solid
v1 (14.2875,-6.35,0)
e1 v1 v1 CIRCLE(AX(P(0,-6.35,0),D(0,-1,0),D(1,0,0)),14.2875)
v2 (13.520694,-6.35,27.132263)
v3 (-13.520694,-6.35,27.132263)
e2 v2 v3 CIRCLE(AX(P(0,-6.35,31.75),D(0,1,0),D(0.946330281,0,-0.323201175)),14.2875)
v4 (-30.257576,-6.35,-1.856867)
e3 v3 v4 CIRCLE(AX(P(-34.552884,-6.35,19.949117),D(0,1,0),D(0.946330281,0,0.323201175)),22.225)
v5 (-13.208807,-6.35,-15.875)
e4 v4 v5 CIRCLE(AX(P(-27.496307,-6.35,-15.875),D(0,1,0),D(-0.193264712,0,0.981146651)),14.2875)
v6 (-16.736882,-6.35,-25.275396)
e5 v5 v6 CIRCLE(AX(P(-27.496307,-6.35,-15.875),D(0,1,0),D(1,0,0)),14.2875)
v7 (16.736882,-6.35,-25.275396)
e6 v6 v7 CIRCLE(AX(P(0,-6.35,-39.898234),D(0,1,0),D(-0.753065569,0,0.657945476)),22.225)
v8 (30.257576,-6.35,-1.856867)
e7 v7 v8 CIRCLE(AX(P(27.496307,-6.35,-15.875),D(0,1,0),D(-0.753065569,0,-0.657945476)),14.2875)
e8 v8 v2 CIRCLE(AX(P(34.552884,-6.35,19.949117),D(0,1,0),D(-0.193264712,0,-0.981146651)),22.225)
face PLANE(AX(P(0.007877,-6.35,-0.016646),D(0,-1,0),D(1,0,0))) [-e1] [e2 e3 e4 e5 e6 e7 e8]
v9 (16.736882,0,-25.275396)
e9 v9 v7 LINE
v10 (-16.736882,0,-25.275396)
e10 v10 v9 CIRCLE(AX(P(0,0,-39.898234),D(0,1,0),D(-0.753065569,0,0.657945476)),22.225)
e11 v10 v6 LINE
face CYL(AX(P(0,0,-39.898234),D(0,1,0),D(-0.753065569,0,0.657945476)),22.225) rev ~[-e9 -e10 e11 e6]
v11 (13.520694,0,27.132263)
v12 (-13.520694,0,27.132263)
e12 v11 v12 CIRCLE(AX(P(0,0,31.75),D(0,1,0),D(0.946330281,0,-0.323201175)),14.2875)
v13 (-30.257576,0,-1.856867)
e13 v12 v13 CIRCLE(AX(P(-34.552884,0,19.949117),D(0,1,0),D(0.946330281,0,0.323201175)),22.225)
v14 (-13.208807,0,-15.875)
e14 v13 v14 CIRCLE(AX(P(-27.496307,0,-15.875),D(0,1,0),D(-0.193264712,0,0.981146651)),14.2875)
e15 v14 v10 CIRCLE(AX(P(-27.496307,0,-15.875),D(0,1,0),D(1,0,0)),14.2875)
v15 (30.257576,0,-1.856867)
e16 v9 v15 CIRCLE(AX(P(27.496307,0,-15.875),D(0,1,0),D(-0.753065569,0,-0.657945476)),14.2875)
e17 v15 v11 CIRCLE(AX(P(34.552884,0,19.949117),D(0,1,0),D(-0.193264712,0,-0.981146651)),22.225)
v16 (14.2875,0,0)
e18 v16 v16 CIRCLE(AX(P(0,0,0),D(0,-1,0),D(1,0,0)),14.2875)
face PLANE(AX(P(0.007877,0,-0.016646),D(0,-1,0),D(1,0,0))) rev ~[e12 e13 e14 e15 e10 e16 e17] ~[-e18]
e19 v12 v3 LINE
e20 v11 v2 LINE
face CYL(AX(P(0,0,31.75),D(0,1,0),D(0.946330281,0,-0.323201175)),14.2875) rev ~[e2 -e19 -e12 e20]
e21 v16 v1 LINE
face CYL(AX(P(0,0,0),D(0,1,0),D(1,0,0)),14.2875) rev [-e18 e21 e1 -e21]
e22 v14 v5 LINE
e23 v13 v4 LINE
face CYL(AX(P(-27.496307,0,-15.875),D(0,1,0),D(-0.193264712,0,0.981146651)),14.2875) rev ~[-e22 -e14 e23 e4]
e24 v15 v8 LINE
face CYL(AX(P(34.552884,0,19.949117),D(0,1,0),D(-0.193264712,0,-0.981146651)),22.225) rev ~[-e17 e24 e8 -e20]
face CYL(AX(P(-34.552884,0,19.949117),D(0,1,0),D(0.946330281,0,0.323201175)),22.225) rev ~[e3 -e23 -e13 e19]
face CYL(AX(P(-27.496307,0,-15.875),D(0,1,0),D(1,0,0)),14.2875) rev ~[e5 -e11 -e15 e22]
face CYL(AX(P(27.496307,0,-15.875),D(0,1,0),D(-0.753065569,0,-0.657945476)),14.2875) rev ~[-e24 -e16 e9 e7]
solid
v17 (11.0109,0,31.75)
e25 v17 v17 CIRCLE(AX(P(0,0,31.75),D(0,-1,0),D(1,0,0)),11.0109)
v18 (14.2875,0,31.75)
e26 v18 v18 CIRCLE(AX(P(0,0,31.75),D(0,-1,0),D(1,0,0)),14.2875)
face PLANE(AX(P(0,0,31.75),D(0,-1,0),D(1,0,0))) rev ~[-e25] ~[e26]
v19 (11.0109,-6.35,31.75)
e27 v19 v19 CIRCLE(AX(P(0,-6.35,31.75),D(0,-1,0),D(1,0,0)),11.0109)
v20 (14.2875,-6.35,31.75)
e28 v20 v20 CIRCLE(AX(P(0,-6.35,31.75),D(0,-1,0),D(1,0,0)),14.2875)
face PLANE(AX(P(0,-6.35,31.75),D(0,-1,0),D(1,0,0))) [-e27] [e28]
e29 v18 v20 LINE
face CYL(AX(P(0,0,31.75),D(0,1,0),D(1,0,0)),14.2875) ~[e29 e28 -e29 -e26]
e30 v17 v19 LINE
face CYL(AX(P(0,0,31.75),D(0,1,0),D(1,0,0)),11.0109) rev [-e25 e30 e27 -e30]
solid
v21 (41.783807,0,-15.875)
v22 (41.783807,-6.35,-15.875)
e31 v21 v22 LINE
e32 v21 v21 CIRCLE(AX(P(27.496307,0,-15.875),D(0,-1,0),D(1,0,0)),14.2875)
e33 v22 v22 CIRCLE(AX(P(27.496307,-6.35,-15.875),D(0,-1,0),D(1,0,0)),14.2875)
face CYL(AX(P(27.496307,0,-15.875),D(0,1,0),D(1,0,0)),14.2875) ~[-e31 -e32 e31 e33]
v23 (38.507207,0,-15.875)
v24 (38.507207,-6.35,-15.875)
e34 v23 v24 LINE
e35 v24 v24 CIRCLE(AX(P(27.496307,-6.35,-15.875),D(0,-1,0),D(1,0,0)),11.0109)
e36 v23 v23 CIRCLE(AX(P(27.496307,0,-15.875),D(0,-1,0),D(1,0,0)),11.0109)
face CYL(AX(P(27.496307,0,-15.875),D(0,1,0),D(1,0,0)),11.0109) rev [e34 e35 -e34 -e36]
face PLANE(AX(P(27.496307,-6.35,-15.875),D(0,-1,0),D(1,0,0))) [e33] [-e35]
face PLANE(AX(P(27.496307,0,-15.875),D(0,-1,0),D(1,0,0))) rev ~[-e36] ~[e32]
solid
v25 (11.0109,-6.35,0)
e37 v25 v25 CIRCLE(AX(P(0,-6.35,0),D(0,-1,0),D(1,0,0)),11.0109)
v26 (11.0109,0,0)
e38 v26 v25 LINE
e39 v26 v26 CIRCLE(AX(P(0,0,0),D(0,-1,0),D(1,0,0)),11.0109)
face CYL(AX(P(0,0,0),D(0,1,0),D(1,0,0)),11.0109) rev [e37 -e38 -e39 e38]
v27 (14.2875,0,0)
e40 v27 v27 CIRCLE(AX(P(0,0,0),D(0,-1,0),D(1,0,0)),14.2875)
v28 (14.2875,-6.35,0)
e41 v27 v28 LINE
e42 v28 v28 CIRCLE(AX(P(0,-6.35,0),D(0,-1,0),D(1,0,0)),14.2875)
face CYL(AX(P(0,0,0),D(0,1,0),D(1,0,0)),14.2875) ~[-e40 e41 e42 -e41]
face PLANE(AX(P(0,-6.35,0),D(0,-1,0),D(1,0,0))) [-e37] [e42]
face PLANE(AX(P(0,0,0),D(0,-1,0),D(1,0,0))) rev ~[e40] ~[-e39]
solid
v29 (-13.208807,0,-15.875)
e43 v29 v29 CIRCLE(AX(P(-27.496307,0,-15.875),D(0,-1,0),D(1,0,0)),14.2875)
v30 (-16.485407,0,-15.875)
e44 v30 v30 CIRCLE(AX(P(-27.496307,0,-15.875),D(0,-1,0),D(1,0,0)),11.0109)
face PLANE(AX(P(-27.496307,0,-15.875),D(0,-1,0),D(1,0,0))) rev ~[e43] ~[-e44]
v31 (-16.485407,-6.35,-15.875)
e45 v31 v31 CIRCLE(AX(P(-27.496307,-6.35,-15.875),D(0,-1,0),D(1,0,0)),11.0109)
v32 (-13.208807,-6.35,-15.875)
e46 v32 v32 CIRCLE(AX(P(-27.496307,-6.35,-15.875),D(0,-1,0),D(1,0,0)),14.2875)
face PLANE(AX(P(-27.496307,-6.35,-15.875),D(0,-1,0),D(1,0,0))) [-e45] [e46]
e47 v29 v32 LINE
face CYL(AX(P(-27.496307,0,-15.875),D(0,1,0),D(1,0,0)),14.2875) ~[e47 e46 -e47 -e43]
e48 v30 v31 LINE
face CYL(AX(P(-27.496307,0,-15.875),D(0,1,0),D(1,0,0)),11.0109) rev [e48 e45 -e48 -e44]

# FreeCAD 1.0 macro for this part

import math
import FreeCAD as App
import Part
import Sketcher
Q = App.Units.Quantity

doc = App.newDocument("Part")
params = doc.addObject("Spreadsheet::Sheet", "Params")
for row, (alias, value) in enumerate([
    ("sketch1_diameter", "1.125 in"),
    ("sketch1_diameter2", "0.867 in"),
    ("pad1_length", "0.25 in"),
    ("sketch2_diameter", "1.125 in"),
    ("sketch2_diameter2", "0.867 in"),
    ("pad2_length", "0.25 in"),
    ("sketch3_diameter", "1.125 in"),
    ("sketch3_diameter2", "0.867 in"),
    ("pad3_length", "0.25 in"),
    ("sketch4_diameter", "1.125 in"),
    ("sketch4_diameter2", "0.867 in"),
    ("pad4_length", "0.25 in"),
    ("sketch5_diameter", "1.125 in"),
    ("sketch5_radius", "0.875 in"),
    ("pad5_length", "0.25 in"),
], start=1):
    params.set(f"A{row}", alias)
    params.set(f"B{row}", "=" + value)
    params.setAlias(f"B{row}", alias)

body = doc.addObject("PartDesign::Body", "Body")

# Sketch on XZ plane
sketch1 = body.newObject("Sketcher::SketchObject", "Sketch")
sketch1.AttachmentSupport = (doc.getObject("XZ_Plane"), [""])
sketch1.MapMode = "FlatFace"
sketch1.addGeometry([
    Part.Circle(App.Vector(0, 0, 0), App.Vector(0, 0, 1), 14),
    Part.Circle(App.Vector(0, 0, 0), App.Vector(0, 0, 1), 11),
], False)
sketch1.addConstraint([
    Sketcher.Constraint("Coincident", 0, 3, -1, 1),
    Sketcher.Constraint("Coincident", 1, 3, -1, 1),
    Sketcher.Constraint("Diameter", 0, Q("1.125 in")),
    Sketcher.Constraint("Diameter", 1, Q("0.867 in")),
])
sketch1.setExpression("Constraints[2]", "Params.sketch1_diameter")
sketch1.setExpression("Constraints[3]", "Params.sketch1_diameter2")
pad1 = body.newObject("PartDesign::Pad", "Pad")
pad1.Profile = sketch1
pad1.setExpression("Length", "Params.pad1_length")
body2 = doc.addObject("PartDesign::Body", "Body001")

# Sketch on XZ plane
sketch2 = body2.newObject("Sketcher::SketchObject", "Sketch001")
sketch2.AttachmentSupport = (doc.getObject("XZ_Plane001"), [""])
sketch2.MapMode = "FlatFace"
sketch2.addGeometry([
    Part.Circle(App.Vector(27, -16, 0), App.Vector(0, 0, 1), 14),
    Part.Circle(App.Vector(27, -16, 0), App.Vector(0, 0, 1), 11),
], False)
sketch2.addConstraint([
    Sketcher.Constraint("Coincident", 1, 3, 0, 3),
    Sketcher.Constraint("Diameter", 0, Q("1.125 in")),
    Sketcher.Constraint("Diameter", 1, Q("0.867 in")),
    Sketcher.Constraint("DistanceY", 0, 3, -1, 1, Q("0.625 in")),
    Sketcher.Constraint("DistanceX", -1, 1, 0, 3, Q("27.496307 mm")),
])
sketch2.setExpression("Constraints[1]", "Params.sketch2_diameter")
sketch2.setExpression("Constraints[2]", "Params.sketch2_diameter2")
pad2 = body2.newObject("PartDesign::Pad", "Pad001")
pad2.Profile = sketch2
pad2.setExpression("Length", "Params.pad2_length")
body3 = doc.addObject("PartDesign::Body", "Body002")

# Sketch on XZ plane
sketch3 = body3.newObject("Sketcher::SketchObject", "Sketch002")
sketch3.AttachmentSupport = (doc.getObject("XZ_Plane002"), [""])
sketch3.MapMode = "FlatFace"
sketch3.addGeometry([
    Part.Circle(App.Vector(-27, -16, 0), App.Vector(0, 0, 1), 14),
    Part.Circle(App.Vector(-27, -16, 0), App.Vector(0, 0, 1), 11),
], False)
sketch3.addConstraint([
    Sketcher.Constraint("Coincident", 1, 3, 0, 3),
    Sketcher.Constraint("Diameter", 0, Q("1.125 in")),
    Sketcher.Constraint("Diameter", 1, Q("0.867 in")),
    Sketcher.Constraint("DistanceY", 0, 3, -1, 1, Q("0.625 in")),
    Sketcher.Constraint("DistanceX", 0, 3, -1, 1, Q("27.496307 mm")),
])
sketch3.setExpression("Constraints[1]", "Params.sketch3_diameter")
sketch3.setExpression("Constraints[2]", "Params.sketch3_diameter2")
pad3 = body3.newObject("PartDesign::Pad", "Pad002")
pad3.Profile = sketch3
pad3.setExpression("Length", "Params.pad3_length")
body4 = doc.addObject("PartDesign::Body", "Body003")

# Sketch on XZ plane
sketch4 = body4.newObject("Sketcher::SketchObject", "Sketch003")
sketch4.AttachmentSupport = (doc.getObject("XZ_Plane003"), [""])
sketch4.MapMode = "FlatFace"
sketch4.addGeometry([
    Part.Circle(App.Vector(0, 32, 0), App.Vector(0, 0, 1), 14),
    Part.Circle(App.Vector(0, 32, 0), App.Vector(0, 0, 1), 11),
], False)
sketch4.addConstraint([
    Sketcher.Constraint("Coincident", 1, 3, 0, 3),
    Sketcher.Constraint("PointOnObject", 0, 3, -2),
    Sketcher.Constraint("Diameter", 0, Q("1.125 in")),
    Sketcher.Constraint("Diameter", 1, Q("0.867 in")),
    Sketcher.Constraint("DistanceY", -1, 1, 0, 3, Q("1.25 in")),
])
sketch4.setExpression("Constraints[2]", "Params.sketch4_diameter")
sketch4.setExpression("Constraints[3]", "Params.sketch4_diameter2")
pad4 = body4.newObject("PartDesign::Pad", "Pad003")
pad4.Profile = sketch4
pad4.setExpression("Length", "Params.pad4_length")
body5 = doc.addObject("PartDesign::Body", "Body004")

# Sketch on XZ plane
sketch5 = body5.newObject("Sketcher::SketchObject", "Sketch004")
sketch5.AttachmentSupport = (doc.getObject("XZ_Plane004"), [""])
sketch5.MapMode = "FlatFace"
sketch5.addGeometry([
    Part.ArcOfCircle(Part.Circle(App.Vector(-35, 20, 0), App.Vector(0, 0, 1), 22), math.radians(-79), math.radians(19)),  # 0
    Part.ArcOfCircle(Part.Circle(App.Vector(-27, -16, 0), App.Vector(0, 0, 1), 14), math.radians(0), math.radians(101)),  # 1
    Part.ArcOfCircle(Part.Circle(App.Vector(-27, -16, 0), App.Vector(0, 0, 1), 14), math.radians(-41), math.radians(0)),  # 2
    Part.ArcOfCircle(Part.Circle(App.Vector(0, -40, 0), App.Vector(0, 0, 1), 22), math.radians(41), math.radians(139)),  # 3
    Part.ArcOfCircle(Part.Circle(App.Vector(27, -16, 0), App.Vector(0, 0, 1), 14), math.radians(79), math.radians(221)),  # 4
    Part.ArcOfCircle(Part.Circle(App.Vector(35, 20, 0), App.Vector(0, 0, 1), 22), math.radians(161), math.radians(259)),  # 5
    Part.ArcOfCircle(Part.Circle(App.Vector(0, 32, 0), App.Vector(0, 0, 1), 14), math.radians(-161), math.radians(-19)),  # 6
    Part.Circle(App.Vector(0, 0, 0), App.Vector(0, 0, 1), 14),  # 7
], False)
sketch5.addConstraint([
    Sketcher.Constraint("Tangent", 0, 1, 1, 2),
    Sketcher.Constraint("Tangent", 1, 1, 2, 2),
    Sketcher.Constraint("Tangent", 2, 1, 3, 2),
    Sketcher.Constraint("Tangent", 3, 1, 4, 2),
    Sketcher.Constraint("Tangent", 4, 1, 5, 2),
    Sketcher.Constraint("Tangent", 5, 1, 6, 2),
    Sketcher.Constraint("Tangent", 6, 1, 0, 2),
    Sketcher.Constraint("Coincident", 7, 3, -1, 1),
    Sketcher.Constraint("Equal", 1, 2),
    Sketcher.Constraint("Equal", 0, 3),
    Sketcher.Constraint("Equal", 2, 4),
    Sketcher.Constraint("Equal", 3, 5),
    Sketcher.Constraint("Equal", 4, 6),
    Sketcher.Constraint("Equal", 6, 7),
    Sketcher.Constraint("Symmetric", 1, 3, 4, 3, -2),
    Sketcher.Constraint("PointOnObject", 6, 3, -2),
    Sketcher.Constraint("Horizontal", 4, 3, 1, 1),
    Sketcher.Constraint("Diameter", 7, Q("1.125 in")),
    Sketcher.Constraint("Radius", 0, Q("0.875 in")),
    Sketcher.Constraint("DistanceY", -1, 1, 6, 3, Q("1.25 in")),
    Sketcher.Constraint("DistanceY", 1, 3, -1, 1, Q("0.625 in")),
    Sketcher.Constraint("DistanceY", 3, 3, 0, 3, Q("59.847351 mm")),
])
sketch5.setExpression("Constraints[17]", "Params.sketch5_diameter")
sketch5.setExpression("Constraints[18]", "Params.sketch5_radius")
pad5 = body5.newObject("PartDesign::Pad", "Pad004")
pad5.Profile = sketch5
pad5.setExpression("Length", "Params.pad5_length")

doc.recompute()
